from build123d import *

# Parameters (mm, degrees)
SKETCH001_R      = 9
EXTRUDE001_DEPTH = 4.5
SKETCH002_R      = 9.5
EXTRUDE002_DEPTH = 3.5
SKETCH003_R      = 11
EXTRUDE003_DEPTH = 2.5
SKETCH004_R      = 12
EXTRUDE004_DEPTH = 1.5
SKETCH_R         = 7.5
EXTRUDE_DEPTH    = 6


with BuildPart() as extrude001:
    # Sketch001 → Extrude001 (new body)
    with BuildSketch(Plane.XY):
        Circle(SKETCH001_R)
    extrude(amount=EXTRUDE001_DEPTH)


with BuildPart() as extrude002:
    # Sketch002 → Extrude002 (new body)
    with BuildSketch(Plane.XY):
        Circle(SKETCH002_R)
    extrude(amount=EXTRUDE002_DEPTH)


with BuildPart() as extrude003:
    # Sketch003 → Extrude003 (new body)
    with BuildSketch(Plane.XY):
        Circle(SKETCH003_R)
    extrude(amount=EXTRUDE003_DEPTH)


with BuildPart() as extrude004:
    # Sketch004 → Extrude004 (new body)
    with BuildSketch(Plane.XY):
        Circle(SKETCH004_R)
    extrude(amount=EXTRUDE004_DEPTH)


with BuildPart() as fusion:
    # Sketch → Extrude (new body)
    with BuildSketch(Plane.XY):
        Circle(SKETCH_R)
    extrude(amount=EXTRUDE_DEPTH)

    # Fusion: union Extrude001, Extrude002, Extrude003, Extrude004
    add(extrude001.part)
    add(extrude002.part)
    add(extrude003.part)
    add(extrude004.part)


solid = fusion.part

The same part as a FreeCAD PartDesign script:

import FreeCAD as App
import Part
import Sketcher

V = App.Vector

doc = App.newDocument("Part")
body = doc.addObject("PartDesign::Body", "Body")

# Sketch on XY plane
sketch1 = doc.addObject("Sketcher::SketchObject", "Sketch")
body.addObject(sketch1)
sketch1.AttachmentSupport = (doc.XY_Plane, [""])
sketch1.MapMode = "FlatFace"
sketch1.addGeometry(Part.Circle(V(0, 0, 0), V(0, 0, 1), 9), False)
sketch1.addConstraint([
    Sketcher.Constraint("Coincident", 0, 3, -1, 1),
    Sketcher.Constraint("Diameter", 0, 18.0),
])
pad1 = doc.addObject("PartDesign::Pad", "Pad")
body.addObject(pad1)
pad1.Profile = sketch1
pad1.Length = 4.5
body2 = doc.addObject("PartDesign::Body", "Body001")

# Sketch on XY plane
sketch2 = doc.addObject("Sketcher::SketchObject", "Sketch001")
body2.addObject(sketch2)
sketch2.AttachmentSupport = (doc.getObject("XY_Plane001"), [""])
sketch2.MapMode = "FlatFace"
sketch2.addGeometry(Part.Circle(V(0, 0, 0), V(0, 0, 1), 9.5), False)
sketch2.addConstraint([
    Sketcher.Constraint("Coincident", 0, 3, -1, 1),
    Sketcher.Constraint("Diameter", 0, 19.0),
])
pad2 = doc.addObject("PartDesign::Pad", "Pad001")
body2.addObject(pad2)
pad2.Profile = sketch2
pad2.Length = 3.5
body3 = doc.addObject("PartDesign::Body", "Body002")

# Sketch on XY plane
sketch3 = doc.addObject("Sketcher::SketchObject", "Sketch002")
body3.addObject(sketch3)
sketch3.AttachmentSupport = (doc.getObject("XY_Plane002"), [""])
sketch3.MapMode = "FlatFace"
sketch3.addGeometry(Part.Circle(V(0, 0, 0), V(0, 0, 1), 11), False)
sketch3.addConstraint([
    Sketcher.Constraint("Coincident", 0, 3, -1, 1),
    Sketcher.Constraint("Diameter", 0, 22.0),
])
pad3 = doc.addObject("PartDesign::Pad", "Pad002")
body3.addObject(pad3)
pad3.Profile = sketch3
pad3.Length = 2.5
body4 = doc.addObject("PartDesign::Body", "Body003")

# Sketch on XY plane
sketch4 = doc.addObject("Sketcher::SketchObject", "Sketch003")
body4.addObject(sketch4)
sketch4.AttachmentSupport = (doc.getObject("XY_Plane003"), [""])
sketch4.MapMode = "FlatFace"
sketch4.addGeometry(Part.Circle(V(0, 0, 0), V(0, 0, 1), 12), False)
sketch4.addConstraint([
    Sketcher.Constraint("Coincident", 0, 3, -1, 1),
    Sketcher.Constraint("Diameter", 0, 24.0),
])
pad4 = doc.addObject("PartDesign::Pad", "Pad003")
body4.addObject(pad4)
pad4.Profile = sketch4
pad4.Length = 1.5
body5 = doc.addObject("PartDesign::Body", "Body004")

# Sketch on XY plane
sketch5 = doc.addObject("Sketcher::SketchObject", "Sketch004")
body5.addObject(sketch5)
sketch5.AttachmentSupport = (doc.getObject("XY_Plane004"), [""])
sketch5.MapMode = "FlatFace"
sketch5.addGeometry(Part.Circle(V(0, 0, 0), V(0, 0, 1), 7.5), False)
sketch5.addConstraint([
    Sketcher.Constraint("Coincident", 0, 3, -1, 1),
    Sketcher.Constraint("Diameter", 0, 15.0),
])
pad5 = doc.addObject("PartDesign::Pad", "Pad004")
body5.addObject(pad5)
pad5.Profile = sketch5
pad5.Length = 6
doc.recompute()

boolean = doc.addObject("PartDesign::Boolean", "Boolean")
body5.addObject(boolean)
boolean.Type = "Fuse"
boolean.addObjects([body])
doc.recompute()

boolean2 = doc.addObject("PartDesign::Boolean", "Boolean001")
body5.addObject(boolean2)
boolean2.Type = "Fuse"
boolean2.addObjects([body2])
doc.recompute()

boolean3 = doc.addObject("PartDesign::Boolean", "Boolean002")
body5.addObject(boolean3)
boolean3.Type = "Fuse"
boolean3.addObjects([body3])
doc.recompute()

boolean4 = doc.addObject("PartDesign::Boolean", "Boolean003")
body5.addObject(boolean4)
boolean4.Type = "Fuse"
boolean4.addObjects([body4])

doc.recompute()
